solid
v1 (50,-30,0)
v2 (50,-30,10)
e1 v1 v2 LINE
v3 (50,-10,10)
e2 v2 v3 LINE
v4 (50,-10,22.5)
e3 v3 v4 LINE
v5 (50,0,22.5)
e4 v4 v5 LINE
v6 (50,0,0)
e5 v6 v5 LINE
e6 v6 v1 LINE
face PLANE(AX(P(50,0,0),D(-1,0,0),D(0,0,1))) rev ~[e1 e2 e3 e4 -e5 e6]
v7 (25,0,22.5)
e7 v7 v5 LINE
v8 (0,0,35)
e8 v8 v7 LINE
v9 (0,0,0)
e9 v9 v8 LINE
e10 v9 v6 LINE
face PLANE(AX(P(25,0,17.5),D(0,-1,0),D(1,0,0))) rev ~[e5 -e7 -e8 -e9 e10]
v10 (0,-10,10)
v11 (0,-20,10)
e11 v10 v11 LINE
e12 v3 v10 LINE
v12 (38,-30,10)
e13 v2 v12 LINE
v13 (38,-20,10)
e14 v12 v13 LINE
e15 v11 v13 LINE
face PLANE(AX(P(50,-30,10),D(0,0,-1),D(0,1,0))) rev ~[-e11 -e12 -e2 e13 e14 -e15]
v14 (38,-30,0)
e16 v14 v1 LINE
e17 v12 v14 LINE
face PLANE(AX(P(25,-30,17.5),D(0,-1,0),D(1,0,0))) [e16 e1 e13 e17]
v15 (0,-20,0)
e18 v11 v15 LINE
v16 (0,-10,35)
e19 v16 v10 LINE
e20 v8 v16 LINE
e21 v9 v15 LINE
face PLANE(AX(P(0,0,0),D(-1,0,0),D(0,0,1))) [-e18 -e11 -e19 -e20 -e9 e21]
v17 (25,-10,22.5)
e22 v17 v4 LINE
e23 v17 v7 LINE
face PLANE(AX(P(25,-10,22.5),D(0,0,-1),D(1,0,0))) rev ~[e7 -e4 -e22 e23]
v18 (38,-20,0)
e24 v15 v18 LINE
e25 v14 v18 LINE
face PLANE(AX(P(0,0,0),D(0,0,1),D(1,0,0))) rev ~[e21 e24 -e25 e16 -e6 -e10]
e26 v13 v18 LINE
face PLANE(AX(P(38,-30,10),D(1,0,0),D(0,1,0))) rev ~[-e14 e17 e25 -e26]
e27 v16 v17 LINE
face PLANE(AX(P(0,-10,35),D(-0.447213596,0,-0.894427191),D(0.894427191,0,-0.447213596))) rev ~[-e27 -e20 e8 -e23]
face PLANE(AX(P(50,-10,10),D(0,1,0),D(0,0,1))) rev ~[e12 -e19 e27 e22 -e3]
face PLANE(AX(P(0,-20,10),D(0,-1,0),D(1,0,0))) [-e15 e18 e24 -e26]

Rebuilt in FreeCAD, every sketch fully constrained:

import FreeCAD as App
import Part
import Sketcher

V = App.Vector


def add_polygon(sketch, points):
    """Adds a closed chain of lines whose ends are joined by coincident constraints."""
    first, n = sketch.GeometryCount, len(points)
    for a, b in zip(points, points[1:] + points[:1]):
        sketch.addGeometry(Part.LineSegment(App.Vector(*a, 0), App.Vector(*b, 0)), False)
    for i in range(n):
        sketch.addConstraint(Sketcher.Constraint("Coincident", first + i, 2, first + (i + 1) % n, 1))

doc = App.newDocument("Part")
body = doc.addObject("PartDesign::Body", "Body")

# Sketch on XZ plane
sketch1 = body.newObject("Sketcher::SketchObject", "Sketch")
sketch1.AttachmentSupport = (doc.getObject("XZ_Plane"), [""])
sketch1.MapMode = "FlatFace"
add_polygon(sketch1, [(0, 35), (0, 0), (50, 0), (50, 35)])  # lines 0-3
sketch1.addConstraint([
    Sketcher.Constraint("Vertical", 0),
    Sketcher.Constraint("Horizontal", 1),
    Sketcher.Constraint("Vertical", 2),
    Sketcher.Constraint("Horizontal", 3),
    Sketcher.Constraint("Coincident", 0, 2, -1, 1),
    Sketcher.Constraint("DistanceX", 1, 1, 1, 2, 50.0),
    Sketcher.Constraint("DistanceY", 0, 2, 0, 1, 35.0),
])
pad1 = body.newObject("PartDesign::Pad", "Pad")
pad1.Profile = sketch1
pad1.Length = 30

# Sketch on YZ plane
sketch2 = body.newObject("Sketcher::SketchObject", "Sketch001")
sketch2.AttachmentSupport = (doc.getObject("YZ_Plane"), [""])
sketch2.MapMode = "FlatFace"
sketch2.AttachmentOffset = App.Placement(V(0, 0, 50), App.Rotation())
add_polygon(sketch2, [(-30, 35), (-30, 10), (-10, 10), (-10, 35)])  # lines 0-3
sketch2.addConstraint([
    Sketcher.Constraint("Vertical", 0),
    Sketcher.Constraint("Horizontal", 1),
    Sketcher.Constraint("Vertical", 2),
    Sketcher.Constraint("Horizontal", 3),
    Sketcher.Constraint("DistanceX", 1, 1, 1, 2, 20.0),
    Sketcher.Constraint("DistanceY", 0, 2, 0, 1, 25.0),
    Sketcher.Constraint("DistanceX", 0, 2, -1, 1, 30.0),
    Sketcher.Constraint("DistanceY", -1, 1, 0, 2, 10.0),
])
pocket1 = body.newObject("PartDesign::Pocket", "Pocket")
pocket1.Profile = sketch2
pocket1.Type = "ThroughAll"

# Sketch on XY plane
sketch3 = body.newObject("Sketcher::SketchObject", "Sketch002")
sketch3.AttachmentSupport = (doc.getObject("XY_Plane"), [""])
sketch3.MapMode = "FlatFace"
sketch3.AttachmentOffset = App.Placement(V(0, 0, 10), App.Rotation())
add_polygon(sketch3, [(0, -20), (0, -30), (38, -30), (38, -20)])  # lines 0-3
sketch3.addConstraint([
    Sketcher.Constraint("Vertical", 0),
    Sketcher.Constraint("Horizontal", 1),
    Sketcher.Constraint("Vertical", 2),
    Sketcher.Constraint("Horizontal", 3),
    Sketcher.Constraint("PointOnObject", 0, 2, -2),
    Sketcher.Constraint("DistanceX", 1, 1, 1, 2, 38.0),
    Sketcher.Constraint("DistanceY", 0, 2, 0, 1, 10.0),
    Sketcher.Constraint("DistanceY", 0, 2, -1, 1, 30.0),
])
pocket2 = body.newObject("PartDesign::Pocket", "Pocket001")
pocket2.Profile = sketch3
pocket2.Type = "ThroughAll"

# Sketch on XZ plane
sketch4 = body.newObject("Sketcher::SketchObject", "Sketch003")
sketch4.AttachmentSupport = (doc.getObject("XZ_Plane"), [""])
sketch4.MapMode = "FlatFace"
sketch4.AttachmentOffset = App.Placement(V(0, 0, 10), App.Rotation())
add_polygon(sketch4, [(50, 35), (0, 35), (25, 22), (50, 22)])  # lines 0-3
sketch4.addConstraint([
    Sketcher.Constraint("Horizontal", 0),
    Sketcher.Constraint("Horizontal", 2),
    Sketcher.Constraint("Vertical", 3),
    Sketcher.Constraint("PointOnObject", 0, 2, -2),
    Sketcher.Constraint("DistanceX", 0, 2, 0, 1, 50.0),
    Sketcher.Constraint("DistanceX", 2, 1, 2, 2, 25.0),
    Sketcher.Constraint("DistanceY", 3, 1, 3, 2, 12.5),
    Sketcher.Constraint("DistanceY", -1, 1, 0, 2, 35.0),
])
pocket3 = body.newObject("PartDesign::Pocket", "Pocket002")
pocket3.Profile = sketch4
pocket3.Type = "ThroughAll"

doc.recompute()
